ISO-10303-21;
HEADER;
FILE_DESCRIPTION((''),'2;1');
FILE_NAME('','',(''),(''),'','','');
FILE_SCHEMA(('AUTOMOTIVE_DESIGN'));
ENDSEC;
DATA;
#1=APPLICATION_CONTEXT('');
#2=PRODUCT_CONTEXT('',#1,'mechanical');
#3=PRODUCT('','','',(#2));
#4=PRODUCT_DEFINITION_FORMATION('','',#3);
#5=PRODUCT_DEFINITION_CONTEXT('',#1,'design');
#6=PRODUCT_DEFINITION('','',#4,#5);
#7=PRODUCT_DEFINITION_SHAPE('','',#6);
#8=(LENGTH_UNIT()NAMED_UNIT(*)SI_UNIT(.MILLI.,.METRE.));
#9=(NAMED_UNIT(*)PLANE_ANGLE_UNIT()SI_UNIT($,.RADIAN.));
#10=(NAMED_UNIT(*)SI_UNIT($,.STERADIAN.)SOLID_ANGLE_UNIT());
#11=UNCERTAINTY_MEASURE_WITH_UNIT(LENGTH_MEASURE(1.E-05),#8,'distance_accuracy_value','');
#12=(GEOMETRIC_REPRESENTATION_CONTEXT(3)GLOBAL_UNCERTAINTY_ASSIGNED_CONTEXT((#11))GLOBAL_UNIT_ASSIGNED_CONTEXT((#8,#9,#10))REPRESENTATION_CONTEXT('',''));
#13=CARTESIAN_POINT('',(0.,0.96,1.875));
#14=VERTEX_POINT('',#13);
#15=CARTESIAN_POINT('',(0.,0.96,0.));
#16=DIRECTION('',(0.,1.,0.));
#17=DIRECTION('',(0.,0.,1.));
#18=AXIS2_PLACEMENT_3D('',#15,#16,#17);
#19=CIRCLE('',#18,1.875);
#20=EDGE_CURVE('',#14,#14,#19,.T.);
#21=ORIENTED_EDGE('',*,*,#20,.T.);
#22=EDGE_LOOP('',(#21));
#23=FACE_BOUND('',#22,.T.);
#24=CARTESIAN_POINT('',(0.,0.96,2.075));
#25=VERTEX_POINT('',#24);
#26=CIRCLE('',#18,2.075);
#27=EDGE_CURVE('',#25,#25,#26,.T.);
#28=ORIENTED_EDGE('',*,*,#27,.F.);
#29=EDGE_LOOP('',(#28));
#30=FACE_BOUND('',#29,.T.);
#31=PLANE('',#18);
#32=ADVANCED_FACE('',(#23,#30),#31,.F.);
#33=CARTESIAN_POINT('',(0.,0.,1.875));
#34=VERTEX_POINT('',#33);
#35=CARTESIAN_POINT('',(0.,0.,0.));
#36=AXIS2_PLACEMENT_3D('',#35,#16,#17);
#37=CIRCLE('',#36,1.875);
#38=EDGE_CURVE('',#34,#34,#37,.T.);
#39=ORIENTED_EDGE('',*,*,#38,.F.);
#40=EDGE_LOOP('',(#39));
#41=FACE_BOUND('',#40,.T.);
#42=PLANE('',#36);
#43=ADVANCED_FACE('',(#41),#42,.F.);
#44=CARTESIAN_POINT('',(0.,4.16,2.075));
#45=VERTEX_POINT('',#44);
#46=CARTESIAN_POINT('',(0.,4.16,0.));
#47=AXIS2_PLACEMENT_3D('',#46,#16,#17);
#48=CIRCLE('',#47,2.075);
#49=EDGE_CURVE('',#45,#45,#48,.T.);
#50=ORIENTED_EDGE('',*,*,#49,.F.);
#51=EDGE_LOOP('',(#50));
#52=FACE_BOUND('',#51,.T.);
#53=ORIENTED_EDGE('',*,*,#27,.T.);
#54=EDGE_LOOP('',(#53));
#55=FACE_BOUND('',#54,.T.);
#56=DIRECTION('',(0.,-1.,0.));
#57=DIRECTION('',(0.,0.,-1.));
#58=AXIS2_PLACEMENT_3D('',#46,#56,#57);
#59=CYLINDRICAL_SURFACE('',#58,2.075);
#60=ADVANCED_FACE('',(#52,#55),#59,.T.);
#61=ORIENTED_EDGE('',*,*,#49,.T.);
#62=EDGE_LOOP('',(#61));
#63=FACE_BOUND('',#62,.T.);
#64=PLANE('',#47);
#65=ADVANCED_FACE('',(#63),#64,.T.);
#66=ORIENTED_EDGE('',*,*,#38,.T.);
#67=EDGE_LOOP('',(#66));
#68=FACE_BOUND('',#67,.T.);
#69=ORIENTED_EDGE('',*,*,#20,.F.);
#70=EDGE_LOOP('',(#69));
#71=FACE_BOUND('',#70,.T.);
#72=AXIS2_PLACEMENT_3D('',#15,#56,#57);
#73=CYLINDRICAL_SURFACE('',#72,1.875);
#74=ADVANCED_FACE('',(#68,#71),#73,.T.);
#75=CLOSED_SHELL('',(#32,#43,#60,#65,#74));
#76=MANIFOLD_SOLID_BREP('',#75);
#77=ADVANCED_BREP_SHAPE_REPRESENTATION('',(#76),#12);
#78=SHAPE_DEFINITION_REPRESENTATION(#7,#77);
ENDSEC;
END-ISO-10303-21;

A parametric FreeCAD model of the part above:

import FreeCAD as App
import Part
import Sketcher
Q = App.Units.Quantity

doc = App.newDocument("Part")
params = doc.addObject("Spreadsheet::Sheet", "Params")
for row, (alias, value) in enumerate([
    ("sketch1_diameter", "3.75 mm"),
    ("pad1_length", "0.96 mm"),
    ("sketch2_diameter", "4.15 mm"),
    ("pad2_length", "3.2 mm"),
], start=1):
    params.set(f"A{row}", alias)
    params.set(f"B{row}", "=" + value)
    params.setAlias(f"B{row}", alias)

body = doc.addObject("PartDesign::Body", "Body")

# Sketch on XZ plane
sketch1 = body.newObject("Sketcher::SketchObject", "Sketch")
sketch1.AttachmentSupport = (doc.getObject("XZ_Plane"), [""])
sketch1.MapMode = "FlatFace"
sketch1.addGeometry(Part.Circle(App.Vector(0, 0, 0), App.Vector(0, 0, 1), 1.875), False)
sketch1.addConstraint(Sketcher.Constraint("Coincident", 0, 3, -1, 1))
sketch1.addConstraint(Sketcher.Constraint("Diameter", 0, Q("3.75 mm")))
sketch1.setExpression("Constraints[1]", "Params.sketch1_diameter")
pad1 = body.newObject("PartDesign::Pad", "Pad")
pad1.Profile = sketch1
pad1.setExpression("Length", "Params.pad1_length")
pad1.Reversed = True

# Sketch on XZ plane
sketch2 = body.newObject("Sketcher::SketchObject", "Sketch001")
sketch2.AttachmentSupport = (doc.getObject("XZ_Plane"), [""])
sketch2.MapMode = "FlatFace"
sketch2.AttachmentOffset = App.Placement(App.Vector(0, 0, -0.96), App.Rotation())
sketch2.addGeometry(Part.Circle(App.Vector(0, 0, 0), App.Vector(0, 0, 1), 2.075), False)
sketch2.addConstraint(Sketcher.Constraint("Coincident", 0, 3, -1, 1))
sketch2.addConstraint(Sketcher.Constraint("Diameter", 0, Q("4.15 mm")))
sketch2.setExpression("Constraints[1]", "Params.sketch2_diameter")
pad2 = body.newObject("PartDesign::Pad", "Pad001")
pad2.Profile = sketch2
pad2.setExpression("Length", "Params.pad2_length")
pad2.Reversed = True

doc.recompute()
